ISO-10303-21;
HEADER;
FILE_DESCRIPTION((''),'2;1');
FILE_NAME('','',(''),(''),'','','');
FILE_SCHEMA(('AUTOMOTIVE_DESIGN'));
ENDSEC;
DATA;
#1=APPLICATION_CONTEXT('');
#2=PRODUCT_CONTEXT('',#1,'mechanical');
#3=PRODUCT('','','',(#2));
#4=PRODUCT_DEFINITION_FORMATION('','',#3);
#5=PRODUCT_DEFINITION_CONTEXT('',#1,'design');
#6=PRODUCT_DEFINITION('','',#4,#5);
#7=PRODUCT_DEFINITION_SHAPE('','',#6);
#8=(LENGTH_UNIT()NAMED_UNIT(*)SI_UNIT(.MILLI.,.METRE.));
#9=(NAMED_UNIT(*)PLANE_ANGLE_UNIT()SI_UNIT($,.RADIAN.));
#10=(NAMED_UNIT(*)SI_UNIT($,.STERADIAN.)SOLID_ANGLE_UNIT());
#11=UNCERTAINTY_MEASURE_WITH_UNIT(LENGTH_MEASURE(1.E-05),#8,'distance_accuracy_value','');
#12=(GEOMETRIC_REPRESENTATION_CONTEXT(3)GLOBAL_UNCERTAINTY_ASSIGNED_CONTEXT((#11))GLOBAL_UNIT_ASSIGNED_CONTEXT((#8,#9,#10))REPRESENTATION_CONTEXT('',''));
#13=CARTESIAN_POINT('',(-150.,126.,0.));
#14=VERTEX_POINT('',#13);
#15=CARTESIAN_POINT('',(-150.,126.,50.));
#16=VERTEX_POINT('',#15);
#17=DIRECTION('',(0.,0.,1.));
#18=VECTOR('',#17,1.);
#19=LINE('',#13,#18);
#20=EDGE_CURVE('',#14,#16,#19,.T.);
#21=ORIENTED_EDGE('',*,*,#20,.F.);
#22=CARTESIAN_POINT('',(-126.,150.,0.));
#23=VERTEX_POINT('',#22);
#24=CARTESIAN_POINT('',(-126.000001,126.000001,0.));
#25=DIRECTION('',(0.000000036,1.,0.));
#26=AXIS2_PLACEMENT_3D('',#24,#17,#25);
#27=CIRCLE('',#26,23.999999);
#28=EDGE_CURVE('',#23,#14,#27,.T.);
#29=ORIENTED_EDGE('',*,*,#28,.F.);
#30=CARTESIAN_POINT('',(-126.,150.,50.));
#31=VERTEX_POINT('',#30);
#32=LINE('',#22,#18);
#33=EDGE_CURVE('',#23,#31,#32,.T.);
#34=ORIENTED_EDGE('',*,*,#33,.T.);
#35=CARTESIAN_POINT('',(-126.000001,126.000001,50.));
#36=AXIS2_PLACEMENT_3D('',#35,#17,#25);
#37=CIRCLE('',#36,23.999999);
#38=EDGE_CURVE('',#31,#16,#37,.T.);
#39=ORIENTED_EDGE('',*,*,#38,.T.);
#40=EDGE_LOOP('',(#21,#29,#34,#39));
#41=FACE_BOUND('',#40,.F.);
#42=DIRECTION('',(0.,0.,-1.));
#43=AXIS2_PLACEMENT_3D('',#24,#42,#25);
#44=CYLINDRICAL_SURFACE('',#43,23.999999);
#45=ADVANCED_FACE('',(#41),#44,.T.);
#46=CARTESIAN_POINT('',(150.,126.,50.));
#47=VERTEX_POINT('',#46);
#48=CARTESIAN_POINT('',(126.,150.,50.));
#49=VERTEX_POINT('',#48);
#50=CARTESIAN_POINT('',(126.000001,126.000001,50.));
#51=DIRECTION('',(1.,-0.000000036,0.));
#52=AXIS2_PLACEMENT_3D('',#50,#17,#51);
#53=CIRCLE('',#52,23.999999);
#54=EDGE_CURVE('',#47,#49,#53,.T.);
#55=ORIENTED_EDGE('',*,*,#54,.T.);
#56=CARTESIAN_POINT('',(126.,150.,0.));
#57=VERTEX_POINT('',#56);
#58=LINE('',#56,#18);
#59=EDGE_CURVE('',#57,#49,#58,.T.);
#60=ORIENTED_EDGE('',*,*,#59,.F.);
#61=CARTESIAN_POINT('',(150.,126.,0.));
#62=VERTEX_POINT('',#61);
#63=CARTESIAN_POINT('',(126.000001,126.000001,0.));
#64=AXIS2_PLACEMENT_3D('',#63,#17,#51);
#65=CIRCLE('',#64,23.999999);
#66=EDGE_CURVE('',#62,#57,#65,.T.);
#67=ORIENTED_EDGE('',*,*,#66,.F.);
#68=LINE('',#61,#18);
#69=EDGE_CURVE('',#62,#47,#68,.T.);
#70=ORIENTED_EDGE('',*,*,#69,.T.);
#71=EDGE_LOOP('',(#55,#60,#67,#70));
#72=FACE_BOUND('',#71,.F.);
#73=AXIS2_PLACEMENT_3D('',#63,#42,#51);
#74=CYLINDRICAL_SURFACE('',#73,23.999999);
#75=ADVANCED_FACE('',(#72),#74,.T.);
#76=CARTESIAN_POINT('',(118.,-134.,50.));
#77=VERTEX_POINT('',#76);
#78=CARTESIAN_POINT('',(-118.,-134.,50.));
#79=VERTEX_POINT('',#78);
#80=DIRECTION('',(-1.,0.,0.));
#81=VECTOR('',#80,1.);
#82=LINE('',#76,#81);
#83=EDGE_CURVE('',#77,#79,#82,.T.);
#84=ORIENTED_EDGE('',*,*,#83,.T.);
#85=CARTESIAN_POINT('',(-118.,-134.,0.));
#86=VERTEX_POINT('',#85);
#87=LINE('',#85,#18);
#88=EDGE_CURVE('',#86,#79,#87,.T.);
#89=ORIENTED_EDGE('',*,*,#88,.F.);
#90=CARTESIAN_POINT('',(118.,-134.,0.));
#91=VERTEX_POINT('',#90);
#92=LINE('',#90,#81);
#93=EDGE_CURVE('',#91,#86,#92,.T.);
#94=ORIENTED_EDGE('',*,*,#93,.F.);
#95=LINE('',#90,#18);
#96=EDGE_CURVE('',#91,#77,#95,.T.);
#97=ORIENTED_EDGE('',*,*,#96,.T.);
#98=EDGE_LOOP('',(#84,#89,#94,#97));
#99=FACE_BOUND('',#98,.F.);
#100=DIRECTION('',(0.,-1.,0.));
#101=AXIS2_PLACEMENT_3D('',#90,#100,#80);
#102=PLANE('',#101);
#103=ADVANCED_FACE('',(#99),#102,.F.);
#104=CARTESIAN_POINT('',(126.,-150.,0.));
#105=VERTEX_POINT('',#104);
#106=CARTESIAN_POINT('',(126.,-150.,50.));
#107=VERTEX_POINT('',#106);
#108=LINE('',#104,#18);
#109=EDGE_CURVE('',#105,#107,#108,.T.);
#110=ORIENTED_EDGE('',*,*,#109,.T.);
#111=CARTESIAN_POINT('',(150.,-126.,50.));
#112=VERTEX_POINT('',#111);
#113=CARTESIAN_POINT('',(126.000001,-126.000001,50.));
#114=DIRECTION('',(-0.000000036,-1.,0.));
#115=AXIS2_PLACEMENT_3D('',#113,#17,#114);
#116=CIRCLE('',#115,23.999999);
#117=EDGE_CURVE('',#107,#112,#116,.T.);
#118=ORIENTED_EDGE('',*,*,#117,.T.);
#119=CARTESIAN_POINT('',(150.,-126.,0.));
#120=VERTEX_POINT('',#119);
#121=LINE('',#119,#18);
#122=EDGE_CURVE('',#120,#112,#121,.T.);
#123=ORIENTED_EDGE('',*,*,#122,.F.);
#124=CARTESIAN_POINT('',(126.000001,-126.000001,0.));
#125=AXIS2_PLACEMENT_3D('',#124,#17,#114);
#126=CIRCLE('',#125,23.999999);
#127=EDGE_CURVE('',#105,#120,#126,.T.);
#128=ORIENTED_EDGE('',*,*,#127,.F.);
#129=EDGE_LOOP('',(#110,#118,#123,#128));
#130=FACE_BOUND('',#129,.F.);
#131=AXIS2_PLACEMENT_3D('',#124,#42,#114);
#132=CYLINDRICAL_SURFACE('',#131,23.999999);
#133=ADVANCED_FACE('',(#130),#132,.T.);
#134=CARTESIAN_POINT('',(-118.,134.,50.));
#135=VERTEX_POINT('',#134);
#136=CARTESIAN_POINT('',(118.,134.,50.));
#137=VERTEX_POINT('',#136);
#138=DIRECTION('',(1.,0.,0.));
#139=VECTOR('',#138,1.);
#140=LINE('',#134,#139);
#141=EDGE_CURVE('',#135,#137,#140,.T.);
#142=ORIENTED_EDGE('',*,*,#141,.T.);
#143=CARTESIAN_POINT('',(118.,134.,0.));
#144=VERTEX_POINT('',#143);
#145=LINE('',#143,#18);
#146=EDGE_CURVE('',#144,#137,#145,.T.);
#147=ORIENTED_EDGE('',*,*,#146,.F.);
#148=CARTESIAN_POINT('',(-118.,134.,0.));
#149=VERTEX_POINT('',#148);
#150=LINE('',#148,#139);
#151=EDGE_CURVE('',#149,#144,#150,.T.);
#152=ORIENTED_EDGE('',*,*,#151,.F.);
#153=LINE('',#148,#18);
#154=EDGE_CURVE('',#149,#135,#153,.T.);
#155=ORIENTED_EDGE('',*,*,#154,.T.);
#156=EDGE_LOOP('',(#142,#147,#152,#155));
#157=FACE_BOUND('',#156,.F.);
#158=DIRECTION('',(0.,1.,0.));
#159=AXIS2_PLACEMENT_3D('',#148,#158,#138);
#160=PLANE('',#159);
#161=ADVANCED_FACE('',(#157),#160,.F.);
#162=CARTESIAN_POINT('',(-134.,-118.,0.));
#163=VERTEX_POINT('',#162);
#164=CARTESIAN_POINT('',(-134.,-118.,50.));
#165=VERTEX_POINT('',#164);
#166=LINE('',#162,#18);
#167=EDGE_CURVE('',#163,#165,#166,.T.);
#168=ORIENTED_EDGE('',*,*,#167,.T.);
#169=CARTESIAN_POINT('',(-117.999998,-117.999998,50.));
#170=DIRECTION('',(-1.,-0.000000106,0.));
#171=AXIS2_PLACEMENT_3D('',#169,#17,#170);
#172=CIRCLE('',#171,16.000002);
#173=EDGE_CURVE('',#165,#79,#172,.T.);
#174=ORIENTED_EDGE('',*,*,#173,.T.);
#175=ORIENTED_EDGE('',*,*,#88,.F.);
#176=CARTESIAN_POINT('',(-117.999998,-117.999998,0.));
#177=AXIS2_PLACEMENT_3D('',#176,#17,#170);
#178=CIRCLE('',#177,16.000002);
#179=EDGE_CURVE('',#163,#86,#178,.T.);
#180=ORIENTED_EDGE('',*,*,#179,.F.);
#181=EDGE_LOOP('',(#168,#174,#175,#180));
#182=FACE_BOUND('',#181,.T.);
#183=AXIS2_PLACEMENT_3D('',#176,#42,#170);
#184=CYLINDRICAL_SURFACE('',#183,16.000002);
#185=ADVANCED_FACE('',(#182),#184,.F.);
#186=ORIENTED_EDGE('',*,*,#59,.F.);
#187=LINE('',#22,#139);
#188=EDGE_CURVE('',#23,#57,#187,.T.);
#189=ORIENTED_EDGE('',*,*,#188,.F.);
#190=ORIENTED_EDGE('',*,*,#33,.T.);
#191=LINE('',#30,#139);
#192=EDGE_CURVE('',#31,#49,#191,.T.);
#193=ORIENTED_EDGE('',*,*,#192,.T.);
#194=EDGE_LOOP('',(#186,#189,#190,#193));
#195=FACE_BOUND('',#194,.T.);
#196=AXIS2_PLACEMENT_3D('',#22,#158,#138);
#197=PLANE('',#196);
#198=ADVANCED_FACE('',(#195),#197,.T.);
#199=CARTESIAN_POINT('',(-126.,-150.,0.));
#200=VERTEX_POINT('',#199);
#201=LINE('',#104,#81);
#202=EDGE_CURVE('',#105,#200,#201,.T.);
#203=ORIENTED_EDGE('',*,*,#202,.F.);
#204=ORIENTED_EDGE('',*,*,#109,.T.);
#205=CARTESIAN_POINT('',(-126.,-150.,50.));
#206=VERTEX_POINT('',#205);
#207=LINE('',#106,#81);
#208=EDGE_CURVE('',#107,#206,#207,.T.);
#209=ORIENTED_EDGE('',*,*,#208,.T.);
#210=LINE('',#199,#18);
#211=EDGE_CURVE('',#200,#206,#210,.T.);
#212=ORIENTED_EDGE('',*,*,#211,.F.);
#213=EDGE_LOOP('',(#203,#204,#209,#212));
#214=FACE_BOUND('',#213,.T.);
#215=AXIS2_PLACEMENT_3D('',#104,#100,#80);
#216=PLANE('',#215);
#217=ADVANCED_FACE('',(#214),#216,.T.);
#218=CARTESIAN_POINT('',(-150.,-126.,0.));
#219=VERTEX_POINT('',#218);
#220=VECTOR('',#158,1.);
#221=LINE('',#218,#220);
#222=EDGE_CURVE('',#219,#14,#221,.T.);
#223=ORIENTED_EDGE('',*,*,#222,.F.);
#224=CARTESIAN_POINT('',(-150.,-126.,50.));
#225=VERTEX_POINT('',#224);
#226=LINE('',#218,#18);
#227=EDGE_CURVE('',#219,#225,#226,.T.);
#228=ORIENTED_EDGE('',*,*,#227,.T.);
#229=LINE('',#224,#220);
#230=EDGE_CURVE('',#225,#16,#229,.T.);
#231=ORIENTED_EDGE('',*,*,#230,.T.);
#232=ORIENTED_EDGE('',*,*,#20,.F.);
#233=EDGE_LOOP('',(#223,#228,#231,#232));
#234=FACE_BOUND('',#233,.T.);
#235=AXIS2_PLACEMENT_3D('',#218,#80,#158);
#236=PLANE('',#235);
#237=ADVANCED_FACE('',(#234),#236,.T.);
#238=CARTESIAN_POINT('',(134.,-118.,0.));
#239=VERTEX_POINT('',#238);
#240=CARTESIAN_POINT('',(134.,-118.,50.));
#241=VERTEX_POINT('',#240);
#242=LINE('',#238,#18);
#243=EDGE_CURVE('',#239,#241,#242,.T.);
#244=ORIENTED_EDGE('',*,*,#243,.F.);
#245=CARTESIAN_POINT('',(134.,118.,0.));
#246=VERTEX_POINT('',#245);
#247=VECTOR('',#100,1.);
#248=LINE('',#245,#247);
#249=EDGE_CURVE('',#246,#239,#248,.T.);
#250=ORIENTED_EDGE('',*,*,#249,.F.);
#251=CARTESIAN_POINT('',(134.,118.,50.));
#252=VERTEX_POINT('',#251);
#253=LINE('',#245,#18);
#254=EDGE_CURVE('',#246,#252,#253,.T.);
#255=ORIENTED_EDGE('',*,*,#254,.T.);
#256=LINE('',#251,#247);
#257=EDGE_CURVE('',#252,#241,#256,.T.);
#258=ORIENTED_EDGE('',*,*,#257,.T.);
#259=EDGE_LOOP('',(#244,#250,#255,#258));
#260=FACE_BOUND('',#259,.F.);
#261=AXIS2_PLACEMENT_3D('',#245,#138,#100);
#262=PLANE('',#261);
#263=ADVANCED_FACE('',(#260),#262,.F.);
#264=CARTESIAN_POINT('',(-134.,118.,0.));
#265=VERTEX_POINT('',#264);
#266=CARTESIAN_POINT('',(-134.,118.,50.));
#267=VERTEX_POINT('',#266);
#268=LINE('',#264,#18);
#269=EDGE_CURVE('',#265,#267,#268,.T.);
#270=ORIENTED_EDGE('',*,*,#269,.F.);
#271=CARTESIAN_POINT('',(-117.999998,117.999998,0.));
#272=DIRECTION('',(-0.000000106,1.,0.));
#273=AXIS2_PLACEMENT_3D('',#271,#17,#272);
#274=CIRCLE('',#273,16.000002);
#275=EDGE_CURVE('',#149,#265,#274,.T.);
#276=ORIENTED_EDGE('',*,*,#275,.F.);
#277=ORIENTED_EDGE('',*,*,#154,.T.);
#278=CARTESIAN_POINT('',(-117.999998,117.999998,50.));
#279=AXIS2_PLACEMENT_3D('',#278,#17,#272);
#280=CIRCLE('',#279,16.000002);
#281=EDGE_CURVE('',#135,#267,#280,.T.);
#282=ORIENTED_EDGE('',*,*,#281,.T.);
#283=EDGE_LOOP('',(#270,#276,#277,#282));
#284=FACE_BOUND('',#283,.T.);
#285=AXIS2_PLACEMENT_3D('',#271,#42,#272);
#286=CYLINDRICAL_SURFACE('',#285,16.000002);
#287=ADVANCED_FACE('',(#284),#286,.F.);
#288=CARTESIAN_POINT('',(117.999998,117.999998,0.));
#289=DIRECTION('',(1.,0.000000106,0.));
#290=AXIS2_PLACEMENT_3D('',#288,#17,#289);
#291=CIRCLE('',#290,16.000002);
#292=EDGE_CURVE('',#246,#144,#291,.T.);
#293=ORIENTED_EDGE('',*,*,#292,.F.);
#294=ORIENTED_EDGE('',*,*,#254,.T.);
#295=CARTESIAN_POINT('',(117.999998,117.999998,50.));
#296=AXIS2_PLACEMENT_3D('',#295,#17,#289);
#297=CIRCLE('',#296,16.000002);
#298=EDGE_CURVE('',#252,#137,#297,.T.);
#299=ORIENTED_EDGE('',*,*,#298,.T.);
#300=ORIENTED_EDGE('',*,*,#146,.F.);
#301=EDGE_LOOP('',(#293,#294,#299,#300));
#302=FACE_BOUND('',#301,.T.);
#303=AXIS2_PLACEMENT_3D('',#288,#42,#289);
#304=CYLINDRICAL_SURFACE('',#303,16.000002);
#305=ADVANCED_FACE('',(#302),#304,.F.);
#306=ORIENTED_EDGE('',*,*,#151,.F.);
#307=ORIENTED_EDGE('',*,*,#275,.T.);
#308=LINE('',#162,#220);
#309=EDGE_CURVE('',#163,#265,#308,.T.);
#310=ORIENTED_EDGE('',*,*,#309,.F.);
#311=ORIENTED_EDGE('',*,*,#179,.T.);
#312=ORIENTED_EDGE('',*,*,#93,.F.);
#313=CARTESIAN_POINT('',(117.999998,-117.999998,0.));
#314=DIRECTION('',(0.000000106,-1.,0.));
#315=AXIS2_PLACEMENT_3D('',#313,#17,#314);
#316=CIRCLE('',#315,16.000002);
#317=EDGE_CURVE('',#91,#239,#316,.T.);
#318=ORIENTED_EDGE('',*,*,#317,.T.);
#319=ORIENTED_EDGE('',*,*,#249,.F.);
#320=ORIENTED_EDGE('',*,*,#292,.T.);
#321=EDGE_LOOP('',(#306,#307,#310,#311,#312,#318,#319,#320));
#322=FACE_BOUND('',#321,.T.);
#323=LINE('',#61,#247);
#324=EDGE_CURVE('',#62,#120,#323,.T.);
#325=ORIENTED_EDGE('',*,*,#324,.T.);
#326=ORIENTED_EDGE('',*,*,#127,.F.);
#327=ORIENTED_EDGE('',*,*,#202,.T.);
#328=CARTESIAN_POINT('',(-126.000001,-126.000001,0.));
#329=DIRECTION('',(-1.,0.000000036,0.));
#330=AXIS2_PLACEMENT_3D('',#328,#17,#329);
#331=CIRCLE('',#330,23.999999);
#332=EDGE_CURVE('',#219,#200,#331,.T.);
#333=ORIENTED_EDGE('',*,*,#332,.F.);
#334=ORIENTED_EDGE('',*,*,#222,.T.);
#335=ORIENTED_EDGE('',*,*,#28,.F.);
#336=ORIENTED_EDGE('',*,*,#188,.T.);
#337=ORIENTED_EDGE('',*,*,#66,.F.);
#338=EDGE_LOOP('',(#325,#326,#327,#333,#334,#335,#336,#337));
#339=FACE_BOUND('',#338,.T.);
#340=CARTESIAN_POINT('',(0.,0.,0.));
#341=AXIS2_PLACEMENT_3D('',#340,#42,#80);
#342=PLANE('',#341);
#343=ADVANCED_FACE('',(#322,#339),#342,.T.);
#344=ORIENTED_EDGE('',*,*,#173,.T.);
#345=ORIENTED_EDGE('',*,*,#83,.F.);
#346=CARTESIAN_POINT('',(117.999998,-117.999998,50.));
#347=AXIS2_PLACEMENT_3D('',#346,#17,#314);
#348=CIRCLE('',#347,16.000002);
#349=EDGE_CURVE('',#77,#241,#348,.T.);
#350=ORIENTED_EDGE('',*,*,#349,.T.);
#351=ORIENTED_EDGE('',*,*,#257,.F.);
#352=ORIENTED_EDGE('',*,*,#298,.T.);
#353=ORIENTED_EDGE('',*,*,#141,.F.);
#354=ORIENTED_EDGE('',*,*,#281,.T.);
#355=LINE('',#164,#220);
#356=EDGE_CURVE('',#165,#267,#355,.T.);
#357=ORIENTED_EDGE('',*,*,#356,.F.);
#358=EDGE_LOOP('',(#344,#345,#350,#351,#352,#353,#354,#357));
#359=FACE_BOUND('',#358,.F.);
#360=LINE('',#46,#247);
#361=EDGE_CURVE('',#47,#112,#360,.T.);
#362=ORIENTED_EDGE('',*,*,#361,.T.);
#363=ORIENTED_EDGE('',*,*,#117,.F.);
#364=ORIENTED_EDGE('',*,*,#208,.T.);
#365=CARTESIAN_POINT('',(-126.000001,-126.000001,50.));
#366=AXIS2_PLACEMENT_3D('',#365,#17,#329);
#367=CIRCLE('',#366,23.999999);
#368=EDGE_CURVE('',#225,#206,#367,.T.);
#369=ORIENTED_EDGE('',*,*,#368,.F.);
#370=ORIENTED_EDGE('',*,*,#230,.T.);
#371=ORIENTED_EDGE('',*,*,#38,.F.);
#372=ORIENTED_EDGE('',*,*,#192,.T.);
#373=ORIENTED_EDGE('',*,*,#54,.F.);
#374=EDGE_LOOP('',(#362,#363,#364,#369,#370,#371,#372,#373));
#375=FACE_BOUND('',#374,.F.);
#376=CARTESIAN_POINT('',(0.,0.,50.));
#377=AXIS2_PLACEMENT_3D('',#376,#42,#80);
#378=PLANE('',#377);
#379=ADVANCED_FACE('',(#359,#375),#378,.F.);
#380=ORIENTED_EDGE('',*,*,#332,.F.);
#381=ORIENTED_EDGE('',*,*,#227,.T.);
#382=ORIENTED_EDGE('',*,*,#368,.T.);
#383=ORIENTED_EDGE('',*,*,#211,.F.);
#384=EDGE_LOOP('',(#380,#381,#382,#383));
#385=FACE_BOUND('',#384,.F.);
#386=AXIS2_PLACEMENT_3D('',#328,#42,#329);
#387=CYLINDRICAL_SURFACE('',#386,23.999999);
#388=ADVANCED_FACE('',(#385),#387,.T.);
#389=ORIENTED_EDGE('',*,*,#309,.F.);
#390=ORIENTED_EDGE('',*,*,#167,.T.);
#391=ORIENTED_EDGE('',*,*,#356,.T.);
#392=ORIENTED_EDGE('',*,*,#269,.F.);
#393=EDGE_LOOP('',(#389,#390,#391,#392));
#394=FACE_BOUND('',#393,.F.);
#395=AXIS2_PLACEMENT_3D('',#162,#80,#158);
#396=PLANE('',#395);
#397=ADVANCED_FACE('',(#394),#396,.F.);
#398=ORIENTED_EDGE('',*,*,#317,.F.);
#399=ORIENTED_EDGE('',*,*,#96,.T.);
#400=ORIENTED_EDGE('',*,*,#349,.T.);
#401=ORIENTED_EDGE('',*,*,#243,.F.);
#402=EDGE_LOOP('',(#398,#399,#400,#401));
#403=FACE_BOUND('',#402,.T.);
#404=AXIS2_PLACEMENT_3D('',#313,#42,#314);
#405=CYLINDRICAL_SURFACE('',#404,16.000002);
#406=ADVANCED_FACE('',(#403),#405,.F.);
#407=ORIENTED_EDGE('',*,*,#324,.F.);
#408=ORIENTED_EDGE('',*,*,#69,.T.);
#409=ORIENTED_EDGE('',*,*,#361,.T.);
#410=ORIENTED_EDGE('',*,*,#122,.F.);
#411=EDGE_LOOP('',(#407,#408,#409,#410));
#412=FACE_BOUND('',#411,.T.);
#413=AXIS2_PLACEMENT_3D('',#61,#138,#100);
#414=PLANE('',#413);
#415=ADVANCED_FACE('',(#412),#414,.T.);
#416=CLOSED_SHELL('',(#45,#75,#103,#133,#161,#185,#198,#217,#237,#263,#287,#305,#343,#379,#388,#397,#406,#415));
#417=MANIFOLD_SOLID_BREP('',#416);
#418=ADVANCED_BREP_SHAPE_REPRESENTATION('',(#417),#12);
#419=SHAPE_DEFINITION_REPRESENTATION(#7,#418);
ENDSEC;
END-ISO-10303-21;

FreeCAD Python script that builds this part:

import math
import FreeCAD as App
import Part
import Sketcher

doc = App.newDocument("Part")
body = doc.addObject("PartDesign::Body", "Body")

# Sketch on XY plane
sketch1 = doc.addObject("Sketcher::SketchObject", "Sketch")
body.addObject(sketch1)
sketch1.AttachmentSupport = (doc.XY_Plane, [""])
sketch1.MapMode = "FlatFace"
sketch1.addGeometry([
    Part.LineSegment(App.Vector(126, 150, 0), App.Vector(-126, 150, 0)),  # 0
    Part.ArcOfCircle(Part.Circle(App.Vector(-126, 126, 0), App.Vector(0, 0, 1), 24), math.radians(90), math.radians(180)),  # 1
    Part.LineSegment(App.Vector(-150, 126, 0), App.Vector(-150, -126, 0)),  # 2
    Part.ArcOfCircle(Part.Circle(App.Vector(-126, -126, 0), App.Vector(0, 0, 1), 24), math.radians(180), math.radians(270)),  # 3
    Part.LineSegment(App.Vector(-126, -150, 0), App.Vector(126, -150, 0)),  # 4
    Part.ArcOfCircle(Part.Circle(App.Vector(126, -126, 0), App.Vector(0, 0, 1), 24), math.radians(-90), math.radians(0)),  # 5
    Part.LineSegment(App.Vector(150, -126, 0), App.Vector(150, 126, 0)),  # 6
    Part.ArcOfCircle(Part.Circle(App.Vector(126, 126, 0), App.Vector(0, 0, 1), 24), math.radians(0), math.radians(90)),  # 7
    Part.LineSegment(App.Vector(-118, 134, 0), App.Vector(118, 134, 0)),  # 8
    Part.ArcOfCircle(Part.Circle(App.Vector(118, 118, 0), App.Vector(0, 0, 1), 16), math.radians(0), math.radians(90)),  # 9
    Part.LineSegment(App.Vector(134, 118, 0), App.Vector(134, -118, 0)),  # 10
    Part.ArcOfCircle(Part.Circle(App.Vector(118, -118, 0), App.Vector(0, 0, 1), 16), math.radians(-90), math.radians(0)),  # 11
    Part.LineSegment(App.Vector(118, -134, 0), App.Vector(-118, -134, 0)),  # 12
    Part.ArcOfCircle(Part.Circle(App.Vector(-118, -118, 0), App.Vector(0, 0, 1), 16), math.radians(-180), math.radians(-90)),  # 13
    Part.LineSegment(App.Vector(-134, -118, 0), App.Vector(-134, 118, 0)),  # 14
    Part.ArcOfCircle(Part.Circle(App.Vector(-118, 118, 0), App.Vector(0, 0, 1), 16), math.radians(90), math.radians(180)),  # 15
], False)
sketch1.addConstraint([
    Sketcher.Constraint("Tangent", 0, 2, 1, 1),
    Sketcher.Constraint("Tangent", 1, 2, 2, 1),
    Sketcher.Constraint("Tangent", 2, 2, 3, 1),
    Sketcher.Constraint("Tangent", 3, 2, 4, 1),
    Sketcher.Constraint("Tangent", 4, 2, 5, 1),
    Sketcher.Constraint("Tangent", 5, 2, 6, 1),
    Sketcher.Constraint("Tangent", 6, 2, 7, 1),
    Sketcher.Constraint("Tangent", 7, 2, 0, 1),
    Sketcher.Constraint("Tangent", 8, 2, 9, 2),
    Sketcher.Constraint("Tangent", 9, 1, 10, 1),
    Sketcher.Constraint("Tangent", 10, 2, 11, 2),
    Sketcher.Constraint("Tangent", 11, 1, 12, 1),
    Sketcher.Constraint("Tangent", 12, 2, 13, 2),
    Sketcher.Constraint("Tangent", 13, 1, 14, 1),
    Sketcher.Constraint("Tangent", 14, 2, 15, 2),
    Sketcher.Constraint("Tangent", 15, 1, 8, 1),
    Sketcher.Constraint("Horizontal", 0),
    Sketcher.Constraint("Vertical", 2),
    Sketcher.Constraint("Horizontal", 4),
    Sketcher.Constraint("Vertical", 6),
    Sketcher.Constraint("Horizontal", 8),
    Sketcher.Constraint("Vertical", 10),
    Sketcher.Constraint("Horizontal", 12),
    Sketcher.Constraint("Vertical", 14),
    Sketcher.Constraint("Equal", 1, 3),
    Sketcher.Constraint("Equal", 3, 5),
    Sketcher.Constraint("Equal", 5, 7),
    Sketcher.Constraint("Equal", 9, 11),
    Sketcher.Constraint("Equal", 11, 13),
    Sketcher.Constraint("Equal", 13, 15),
    Sketcher.Constraint("Symmetric", 1, 3, 5, 3, -1, 1),
    Sketcher.Constraint("Symmetric", 9, 3, 13, 3, -1, 1),
    Sketcher.Constraint("Equal", 4, 2),
    Sketcher.Constraint("Equal", 12, 10),
    Sketcher.Constraint("Radius", 1, 23.999999),
    Sketcher.Constraint("Radius", 9, 16.000002),
    Sketcher.Constraint("DistanceX", 0, 2, 0, 1, 252.0),
    Sketcher.Constraint("DistanceX", 8, 1, 8, 2, 236.0),
])
pad1 = doc.addObject("PartDesign::Pad", "Pad")
body.addObject(pad1)
pad1.Profile = sketch1
pad1.Length = 50

doc.recompute()
